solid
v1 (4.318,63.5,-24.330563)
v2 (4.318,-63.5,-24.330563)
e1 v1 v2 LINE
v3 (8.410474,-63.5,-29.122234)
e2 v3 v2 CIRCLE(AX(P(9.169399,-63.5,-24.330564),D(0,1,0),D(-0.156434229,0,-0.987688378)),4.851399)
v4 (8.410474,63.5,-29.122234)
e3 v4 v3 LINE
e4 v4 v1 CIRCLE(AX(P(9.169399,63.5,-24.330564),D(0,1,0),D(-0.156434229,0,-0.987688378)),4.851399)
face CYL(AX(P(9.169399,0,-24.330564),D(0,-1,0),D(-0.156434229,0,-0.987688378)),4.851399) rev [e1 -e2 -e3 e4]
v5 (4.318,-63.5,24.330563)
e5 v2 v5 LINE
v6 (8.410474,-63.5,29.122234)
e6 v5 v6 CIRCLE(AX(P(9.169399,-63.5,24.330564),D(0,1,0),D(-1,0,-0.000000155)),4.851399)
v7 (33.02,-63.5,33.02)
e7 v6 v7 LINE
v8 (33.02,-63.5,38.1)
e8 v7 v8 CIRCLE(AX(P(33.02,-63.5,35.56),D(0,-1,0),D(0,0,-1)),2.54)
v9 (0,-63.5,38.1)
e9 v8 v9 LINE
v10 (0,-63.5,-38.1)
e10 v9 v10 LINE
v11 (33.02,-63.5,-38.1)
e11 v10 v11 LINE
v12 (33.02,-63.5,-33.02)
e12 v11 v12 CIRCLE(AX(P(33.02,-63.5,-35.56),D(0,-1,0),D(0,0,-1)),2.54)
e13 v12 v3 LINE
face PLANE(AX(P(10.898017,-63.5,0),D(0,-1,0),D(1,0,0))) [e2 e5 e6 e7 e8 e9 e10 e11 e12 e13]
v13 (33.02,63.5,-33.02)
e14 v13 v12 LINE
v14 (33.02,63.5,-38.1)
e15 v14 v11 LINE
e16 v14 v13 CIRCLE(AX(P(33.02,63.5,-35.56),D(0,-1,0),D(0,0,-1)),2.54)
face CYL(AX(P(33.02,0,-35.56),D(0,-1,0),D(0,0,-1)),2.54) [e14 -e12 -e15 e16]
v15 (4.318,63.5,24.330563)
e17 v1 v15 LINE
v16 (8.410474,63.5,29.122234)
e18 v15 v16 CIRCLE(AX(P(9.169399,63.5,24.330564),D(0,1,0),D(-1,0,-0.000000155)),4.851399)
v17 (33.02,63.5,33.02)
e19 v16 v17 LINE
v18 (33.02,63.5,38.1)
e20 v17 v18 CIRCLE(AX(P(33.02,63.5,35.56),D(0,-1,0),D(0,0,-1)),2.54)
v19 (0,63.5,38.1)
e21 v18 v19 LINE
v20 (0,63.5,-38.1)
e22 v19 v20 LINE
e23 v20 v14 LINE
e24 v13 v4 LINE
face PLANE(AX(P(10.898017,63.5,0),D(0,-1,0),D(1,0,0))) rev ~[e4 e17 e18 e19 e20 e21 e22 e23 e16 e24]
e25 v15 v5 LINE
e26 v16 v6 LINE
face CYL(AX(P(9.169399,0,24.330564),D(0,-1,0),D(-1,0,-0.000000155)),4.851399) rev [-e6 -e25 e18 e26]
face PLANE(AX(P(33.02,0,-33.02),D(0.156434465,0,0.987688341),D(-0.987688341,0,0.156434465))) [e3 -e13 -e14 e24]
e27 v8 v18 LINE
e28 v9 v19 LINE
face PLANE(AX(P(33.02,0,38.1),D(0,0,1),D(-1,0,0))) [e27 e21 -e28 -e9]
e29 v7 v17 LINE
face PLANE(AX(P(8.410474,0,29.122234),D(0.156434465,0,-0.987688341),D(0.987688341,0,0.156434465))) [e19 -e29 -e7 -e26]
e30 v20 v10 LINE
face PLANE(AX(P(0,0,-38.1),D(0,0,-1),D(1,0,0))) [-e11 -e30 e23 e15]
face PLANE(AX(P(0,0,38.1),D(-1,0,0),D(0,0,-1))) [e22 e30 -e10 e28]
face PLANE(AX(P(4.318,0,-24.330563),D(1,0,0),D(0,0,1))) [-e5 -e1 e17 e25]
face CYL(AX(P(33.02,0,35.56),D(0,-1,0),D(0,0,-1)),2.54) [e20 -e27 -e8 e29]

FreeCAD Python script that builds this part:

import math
import FreeCAD as App
import Part
import Sketcher
from FreeCAD import Vector
Q = App.Units.Quantity

doc = App.newDocument("Part")
params = doc.addObject("Spreadsheet::Sheet", "Params")
for row, (alias, value) in enumerate([
    ("sketch1_radius", "0.1 in"),
    ("sketch1_height", "3 in"),
    ("sketch1_width", "1.3 in"),
    ("sketch1_radius2", "0.191 in"),
    ("pad1_length", "5 in"),
], start=1):
    params.set(f"A{row}", alias)
    params.set(f"B{row}", "=" + value)
    params.setAlias(f"B{row}", alias)

body = doc.addObject("PartDesign::Body", "Body")

# Sketch on XZ plane
sketch1 = body.newObject("Sketcher::SketchObject", "Sketch")
sketch1.AttachmentSupport = (doc.getObject("XZ_Plane"), [""])
sketch1.MapMode = "FlatFace"
sketch1.addGeometry([
    Part.LineSegment(Vector(0, 38.1, 0), Vector(0, -38.1, 0)),  # 0
    Part.LineSegment(Vector(0, -38.1, 0), Vector(33, -38.1, 0)),  # 1
    Part.ArcOfCircle(Part.Circle(Vector(33, -35.6, 0), Vector(0, 0, 1), 2.5), math.radians(-90), math.radians(90)),  # 2
    Part.LineSegment(Vector(33, -33, 0), Vector(8.4, -29.1, 0)),  # 3
    Part.ArcOfCircle(Part.Circle(Vector(9.2, -24.3, 0), Vector(0, 0, 1), 4.9), math.radians(180), math.radians(261)),  # 4
    Part.LineSegment(Vector(4.3, -24.3, 0), Vector(4.3, 24.3, 0)),  # 5
    Part.ArcOfCircle(Part.Circle(Vector(9.2, 24.3, 0), Vector(0, 0, 1), 4.9), math.radians(99), math.radians(180)),  # 6
    Part.LineSegment(Vector(8.4, 29.1, 0), Vector(33, 33, 0)),  # 7
    Part.ArcOfCircle(Part.Circle(Vector(33, 35.6, 0), Vector(0, 0, 1), 2.5), math.radians(-90), math.radians(90)),  # 8
    Part.LineSegment(Vector(33, 38.1, 0), Vector(0, 38.1, 0)),  # 9
], False)
sketch1.addConstraint([
    Sketcher.Constraint("Coincident", 0, 2, 1, 1),
    Sketcher.Constraint("Tangent", 1, 2, 2, 1),
    Sketcher.Constraint("Coincident", 2, 2, 3, 1),
    Sketcher.Constraint("Tangent", 3, 2, 4, 2),
    Sketcher.Constraint("Tangent", 4, 1, 5, 1),
    Sketcher.Constraint("Tangent", 5, 2, 6, 2),
    Sketcher.Constraint("Tangent", 6, 1, 7, 1),
    Sketcher.Constraint("Coincident", 7, 2, 8, 1),
    Sketcher.Constraint("Tangent", 8, 2, 9, 1),
    Sketcher.Constraint("Coincident", 9, 2, 0, 1),
    Sketcher.Constraint("Vertical", 0),
    Sketcher.Constraint("Horizontal", 1),
    Sketcher.Constraint("Vertical", 5),
    Sketcher.Constraint("Horizontal", 9),
    Sketcher.Constraint("Equal", 4, 6),
    Sketcher.Constraint("Equal", 2, 8),
    Sketcher.Constraint("Symmetric", 0, 2, 9, 2, -1, 1),
    Sketcher.Constraint("Symmetric", 3, 2, 6, 1, -1),
    Sketcher.Constraint("Vertical", 2, 3, 8, 3),
    Sketcher.Constraint("Vertical", 1, 2, 2, 2),
    Sketcher.Constraint("Radius", 2, Q("0.1 in")),
    Sketcher.Constraint("DistanceY", 0, 2, 0, 1, Q("3 in")),
    Sketcher.Constraint("DistanceX", 1, 1, 1, 2, Q("1.3 in")),
    Sketcher.Constraint("Angle", 3, Q("171 deg")),
    Sketcher.Constraint("Radius", 4, Q("0.191 in")),
    Sketcher.Constraint("DistanceX", -1, 1, 4, 1, Q("0.17 in")),
])
sketch1.setExpression("Constraints[20]", "Params.sketch1_radius")
sketch1.setExpression("Constraints[21]", "Params.sketch1_height")
sketch1.setExpression("Constraints[22]", "Params.sketch1_width")
sketch1.setExpression("Constraints[24]", "Params.sketch1_radius2")
pad1 = body.newObject("PartDesign::Pad", "Pad")
pad1.Profile = sketch1
pad1.setExpression("Length", "Params.pad1_length")
pad1.Midplane = True

doc.recompute()
